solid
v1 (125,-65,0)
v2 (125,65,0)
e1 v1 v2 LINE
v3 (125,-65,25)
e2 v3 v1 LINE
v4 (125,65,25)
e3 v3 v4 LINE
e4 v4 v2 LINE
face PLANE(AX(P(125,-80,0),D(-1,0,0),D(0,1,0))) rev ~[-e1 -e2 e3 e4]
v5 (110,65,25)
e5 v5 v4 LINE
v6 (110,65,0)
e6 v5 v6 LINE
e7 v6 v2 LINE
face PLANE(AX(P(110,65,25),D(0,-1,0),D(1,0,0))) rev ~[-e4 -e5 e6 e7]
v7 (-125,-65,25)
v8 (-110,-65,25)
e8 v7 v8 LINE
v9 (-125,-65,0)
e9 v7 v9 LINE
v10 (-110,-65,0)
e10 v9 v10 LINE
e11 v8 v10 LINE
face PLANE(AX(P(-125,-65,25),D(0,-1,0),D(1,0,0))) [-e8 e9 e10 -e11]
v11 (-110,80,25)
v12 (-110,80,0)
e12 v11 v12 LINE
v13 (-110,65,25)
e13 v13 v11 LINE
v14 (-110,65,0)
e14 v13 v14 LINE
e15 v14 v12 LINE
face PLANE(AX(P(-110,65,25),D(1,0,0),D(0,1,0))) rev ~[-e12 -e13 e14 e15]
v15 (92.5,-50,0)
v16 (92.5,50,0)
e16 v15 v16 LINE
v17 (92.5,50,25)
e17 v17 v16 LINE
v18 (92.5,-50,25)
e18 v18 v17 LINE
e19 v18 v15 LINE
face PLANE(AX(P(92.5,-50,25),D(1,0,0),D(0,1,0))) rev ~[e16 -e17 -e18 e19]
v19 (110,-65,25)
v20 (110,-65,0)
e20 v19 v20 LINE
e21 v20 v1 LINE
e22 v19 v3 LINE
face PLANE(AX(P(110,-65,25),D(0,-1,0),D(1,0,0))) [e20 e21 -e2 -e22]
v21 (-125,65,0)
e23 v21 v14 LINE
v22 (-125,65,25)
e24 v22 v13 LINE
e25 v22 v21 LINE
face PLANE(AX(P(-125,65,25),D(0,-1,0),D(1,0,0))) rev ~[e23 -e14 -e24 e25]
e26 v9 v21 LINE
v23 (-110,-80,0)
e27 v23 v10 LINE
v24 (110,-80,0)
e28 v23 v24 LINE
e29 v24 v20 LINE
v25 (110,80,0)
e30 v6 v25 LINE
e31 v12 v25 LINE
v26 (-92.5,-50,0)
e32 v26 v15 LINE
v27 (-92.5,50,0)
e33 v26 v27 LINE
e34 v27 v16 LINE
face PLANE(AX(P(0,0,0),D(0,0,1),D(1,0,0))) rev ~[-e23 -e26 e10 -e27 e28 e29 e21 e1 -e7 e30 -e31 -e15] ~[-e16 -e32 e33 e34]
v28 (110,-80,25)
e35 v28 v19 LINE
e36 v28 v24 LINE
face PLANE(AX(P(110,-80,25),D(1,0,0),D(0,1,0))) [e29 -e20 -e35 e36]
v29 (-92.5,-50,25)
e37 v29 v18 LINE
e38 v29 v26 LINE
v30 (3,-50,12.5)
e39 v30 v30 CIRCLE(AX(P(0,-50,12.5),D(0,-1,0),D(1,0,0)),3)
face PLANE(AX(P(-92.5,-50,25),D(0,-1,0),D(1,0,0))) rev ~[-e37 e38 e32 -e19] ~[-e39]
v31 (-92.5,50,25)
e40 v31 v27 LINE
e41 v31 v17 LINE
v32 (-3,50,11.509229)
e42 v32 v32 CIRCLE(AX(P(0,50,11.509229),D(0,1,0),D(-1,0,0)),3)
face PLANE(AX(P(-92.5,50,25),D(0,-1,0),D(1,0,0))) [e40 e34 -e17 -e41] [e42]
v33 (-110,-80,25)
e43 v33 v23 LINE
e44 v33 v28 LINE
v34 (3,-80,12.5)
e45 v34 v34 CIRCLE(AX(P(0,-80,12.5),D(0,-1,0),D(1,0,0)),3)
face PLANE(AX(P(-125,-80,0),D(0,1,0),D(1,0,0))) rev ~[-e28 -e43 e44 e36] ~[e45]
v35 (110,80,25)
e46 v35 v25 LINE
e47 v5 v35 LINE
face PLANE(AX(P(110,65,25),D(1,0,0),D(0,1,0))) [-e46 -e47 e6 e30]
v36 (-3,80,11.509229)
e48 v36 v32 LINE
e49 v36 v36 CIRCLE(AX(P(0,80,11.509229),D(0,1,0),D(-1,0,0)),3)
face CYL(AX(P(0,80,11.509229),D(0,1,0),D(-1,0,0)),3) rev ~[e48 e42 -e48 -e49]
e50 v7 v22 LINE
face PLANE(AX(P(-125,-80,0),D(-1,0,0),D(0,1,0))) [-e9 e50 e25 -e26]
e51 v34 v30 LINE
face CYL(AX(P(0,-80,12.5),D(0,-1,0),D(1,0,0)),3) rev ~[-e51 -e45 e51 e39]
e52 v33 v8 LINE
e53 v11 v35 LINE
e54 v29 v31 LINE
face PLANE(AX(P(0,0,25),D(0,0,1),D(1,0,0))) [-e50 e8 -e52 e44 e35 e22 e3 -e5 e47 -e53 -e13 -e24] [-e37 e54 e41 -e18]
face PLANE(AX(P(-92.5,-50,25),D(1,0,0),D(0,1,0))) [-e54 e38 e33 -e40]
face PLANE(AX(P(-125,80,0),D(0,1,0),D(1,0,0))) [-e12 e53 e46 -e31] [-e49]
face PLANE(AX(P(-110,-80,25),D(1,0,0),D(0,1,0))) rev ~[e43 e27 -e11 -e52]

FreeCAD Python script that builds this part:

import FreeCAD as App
import Part
import Sketcher

V = App.Vector
Q = App.Units.Quantity

doc = App.newDocument("Part")
params = doc.addObject("Spreadsheet::Sheet", "Params")
for row, (alias, value) in enumerate([
    ("sketch1_width", "250 mm"),
    ("sketch1_height", "160 mm"),
    ("pad1_length", "25 mm"),
    ("sketch2_width", "15 mm"),
    ("pocket1_length", "25 mm"),
    ("sketch3_width", "185 mm"),
    ("sketch3_height", "100 mm"),
    ("pocket2_length", "25 mm"),
    ("sketch4_diameter", "6 mm"),
    ("pocket3_length", "40 mm"),
    ("sketch5_diameter", "6 mm"),
    ("pocket4_length", "40 mm"),
], start=1):
    params.set(f"A{row}", alias)
    params.set(f"B{row}", "=" + value)
    params.setAlias(f"B{row}", alias)

body = doc.addObject("PartDesign::Body", "Body")

# Sketch on XY plane
sketch1 = body.newObject("Sketcher::SketchObject", "Sketch")
sketch1.AttachmentSupport = (doc.getObject("XY_Plane"), [""])
sketch1.MapMode = "FlatFace"
sketch1.addGeometry(Part.LineSegment(V(-125, 80, 0), V(-125, -80, 0)), False)
sketch1.addGeometry(Part.LineSegment(V(-125, -80, 0), V(125, -80, 0)), False)
sketch1.addGeometry(Part.LineSegment(V(125, -80, 0), V(125, 80, 0)), False)
sketch1.addGeometry(Part.LineSegment(V(125, 80, 0), V(-125, 80, 0)), False)
sketch1.addConstraint(Sketcher.Constraint("Coincident", 0, 2, 1, 1))
sketch1.addConstraint(Sketcher.Constraint("Coincident", 1, 2, 2, 1))
sketch1.addConstraint(Sketcher.Constraint("Coincident", 2, 2, 3, 1))
sketch1.addConstraint(Sketcher.Constraint("Coincident", 3, 2, 0, 1))
sketch1.addConstraint(Sketcher.Constraint("Vertical", 0))
sketch1.addConstraint(Sketcher.Constraint("Horizontal", 1))
sketch1.addConstraint(Sketcher.Constraint("Vertical", 2))
sketch1.addConstraint(Sketcher.Constraint("Horizontal", 3))
sketch1.addConstraint(Sketcher.Constraint("Symmetric", 0, 2, 2, 2, -1, 1))
sketch1.addConstraint(Sketcher.Constraint("DistanceX", 1, 1, 1, 2, Q("250 mm")))
sketch1.addConstraint(Sketcher.Constraint("DistanceY", 0, 2, 0, 1, Q("160 mm")))
sketch1.setExpression("Constraints[9]", "Params.sketch1_width")
sketch1.setExpression("Constraints[10]", "Params.sketch1_height")
pad1 = body.newObject("PartDesign::Pad", "Pad")
pad1.Profile = sketch1
pad1.setExpression("Length", "Params.pad1_length")

# Sketch on XY plane
sketch2 = body.newObject("Sketcher::SketchObject", "Sketch001")
sketch2.AttachmentSupport = (doc.getObject("XY_Plane"), [""])
sketch2.MapMode = "FlatFace"
sketch2.AttachmentOffset = App.Placement(V(0, 0, 25), App.Rotation())
sketch2.addGeometry(Part.LineSegment(V(-125, 80, 0), V(-125, 65, 0)), False)
sketch2.addGeometry(Part.LineSegment(V(-125, 65, 0), V(-110, 65, 0)), False)
sketch2.addGeometry(Part.LineSegment(V(-110, 65, 0), V(-110, 80, 0)), False)
sketch2.addGeometry(Part.LineSegment(V(-110, 80, 0), V(-125, 80, 0)), False)
sketch2.addGeometry(Part.LineSegment(V(110, 80, 0), V(110, 65, 0)), False)
sketch2.addGeometry(Part.LineSegment(V(110, 65, 0), V(125, 65, 0)), False)
sketch2.addGeometry(Part.LineSegment(V(125, 65, 0), V(125, 80, 0)), False)
sketch2.addGeometry(Part.LineSegment(V(125, 80, 0), V(110, 80, 0)), False)
sketch2.addGeometry(Part.LineSegment(V(110, -65, 0), V(110, -80, 0)), False)
sketch2.addGeometry(Part.LineSegment(V(110, -80, 0), V(125, -80, 0)), False)
sketch2.addGeometry(Part.LineSegment(V(125, -80, 0), V(125, -65, 0)), False)
sketch2.addGeometry(Part.LineSegment(V(125, -65, 0), V(110, -65, 0)), False)
sketch2.addGeometry(Part.LineSegment(V(-125, -65, 0), V(-125, -80, 0)), False)
sketch2.addGeometry(Part.LineSegment(V(-125, -80, 0), V(-110, -80, 0)), False)
sketch2.addGeometry(Part.LineSegment(V(-110, -80, 0), V(-110, -65, 0)), False)
sketch2.addGeometry(Part.LineSegment(V(-110, -65, 0), V(-125, -65, 0)), False)
sketch2.addConstraint(Sketcher.Constraint("Coincident", 0, 2, 1, 1))
sketch2.addConstraint(Sketcher.Constraint("Coincident", 1, 2, 2, 1))
sketch2.addConstraint(Sketcher.Constraint("Coincident", 2, 2, 3, 1))
sketch2.addConstraint(Sketcher.Constraint("Coincident", 3, 2, 0, 1))
sketch2.addConstraint(Sketcher.Constraint("Coincident", 4, 2, 5, 1))
sketch2.addConstraint(Sketcher.Constraint("Coincident", 5, 2, 6, 1))
sketch2.addConstraint(Sketcher.Constraint("Coincident", 6, 2, 7, 1))
sketch2.addConstraint(Sketcher.Constraint("Coincident", 7, 2, 4, 1))
sketch2.addConstraint(Sketcher.Constraint("Coincident", 8, 2, 9, 1))
sketch2.addConstraint(Sketcher.Constraint("Coincident", 9, 2, 10, 1))
sketch2.addConstraint(Sketcher.Constraint("Coincident", 10, 2, 11, 1))
sketch2.addConstraint(Sketcher.Constraint("Coincident", 11, 2, 8, 1))
sketch2.addConstraint(Sketcher.Constraint("Coincident", 12, 2, 13, 1))
sketch2.addConstraint(Sketcher.Constraint("Coincident", 13, 2, 14, 1))
sketch2.addConstraint(Sketcher.Constraint("Coincident", 14, 2, 15, 1))
sketch2.addConstraint(Sketcher.Constraint("Coincident", 15, 2, 12, 1))
sketch2.addConstraint(Sketcher.Constraint("Vertical", 0))
sketch2.addConstraint(Sketcher.Constraint("Horizontal", 1))
sketch2.addConstraint(Sketcher.Constraint("Vertical", 2))
sketch2.addConstraint(Sketcher.Constraint("Horizontal", 3))
sketch2.addConstraint(Sketcher.Constraint("Vertical", 4))
sketch2.addConstraint(Sketcher.Constraint("Horizontal", 5))
sketch2.addConstraint(Sketcher.Constraint("Vertical", 6))
sketch2.addConstraint(Sketcher.Constraint("Horizontal", 7))
sketch2.addConstraint(Sketcher.Constraint("Vertical", 8))
sketch2.addConstraint(Sketcher.Constraint("Horizontal", 9))
sketch2.addConstraint(Sketcher.Constraint("Vertical", 10))
sketch2.addConstraint(Sketcher.Constraint("Horizontal", 11))
sketch2.addConstraint(Sketcher.Constraint("Vertical", 12))
sketch2.addConstraint(Sketcher.Constraint("Horizontal", 13))
sketch2.addConstraint(Sketcher.Constraint("Vertical", 14))
sketch2.addConstraint(Sketcher.Constraint("Horizontal", 15))
sketch2.addConstraint(Sketcher.Constraint("Symmetric", 2, 2, 8, 2, -1, 1))
sketch2.addConstraint(Sketcher.Constraint("Symmetric", 0, 2, 10, 2, -1, 1))
sketch2.addConstraint(Sketcher.Constraint("Symmetric", 6, 2, 12, 2, -1, 1))
sketch2.addConstraint(Sketcher.Constraint("Symmetric", 4, 2, 14, 2, -1, 1))
sketch2.addConstraint(Sketcher.Constraint("Symmetric", 1, 2, 4, 2, -2))
sketch2.addConstraint(Sketcher.Constraint("Symmetric", 3, 2, 6, 2, -2))
sketch2.addConstraint(Sketcher.Constraint("Equal", 15, 0))
sketch2.addConstraint(Sketcher.Constraint("DistanceX", 1, 1, 1, 2, Q("15 mm")))
sketch2.addConstraint(Sketcher.Constraint("DistanceX", 0, 2, -1, 1, Q("125 mm")))
sketch2.addConstraint(Sketcher.Constraint("DistanceY", -1, 1, 0, 2, Q("65 mm")))
sketch2.setExpression("Constraints[39]", "Params.sketch2_width")
pocket1 = body.newObject("PartDesign::Pocket", "Pocket")
pocket1.Profile = sketch2
pocket1.setExpression("Length", "Params.pocket1_length")

# Sketch on XY plane
sketch3 = body.newObject("Sketcher::SketchObject", "Sketch002")
sketch3.AttachmentSupport = (doc.getObject("XY_Plane"), [""])
sketch3.MapMode = "FlatFace"
sketch3.AttachmentOffset = App.Placement(V(0, 0, 25), App.Rotation())
sketch3.addGeometry(Part.LineSegment(V(-92, 50, 0), V(-92, -50, 0)), False)
sketch3.addGeometry(Part.LineSegment(V(-92, -50, 0), V(92, -50, 0)), False)
sketch3.addGeometry(Part.LineSegment(V(92, -50, 0), V(92, 50, 0)), False)
sketch3.addGeometry(Part.LineSegment(V(92, 50, 0), V(-92, 50, 0)), False)
sketch3.addConstraint(Sketcher.Constraint("Coincident", 0, 2, 1, 1))
sketch3.addConstraint(Sketcher.Constraint("Coincident", 1, 2, 2, 1))
sketch3.addConstraint(Sketcher.Constraint("Coincident", 2, 2, 3, 1))
sketch3.addConstraint(Sketcher.Constraint("Coincident", 3, 2, 0, 1))
sketch3.addConstraint(Sketcher.Constraint("Vertical", 0))
sketch3.addConstraint(Sketcher.Constraint("Horizontal", 1))
sketch3.addConstraint(Sketcher.Constraint("Vertical", 2))
sketch3.addConstraint(Sketcher.Constraint("Horizontal", 3))
sketch3.addConstraint(Sketcher.Constraint("Symmetric", 0, 2, 2, 2, -1, 1))
sketch3.addConstraint(Sketcher.Constraint("DistanceX", 1, 1, 1, 2, Q("185 mm")))
sketch3.addConstraint(Sketcher.Constraint("DistanceY", 0, 2, 0, 1, Q("100 mm")))
sketch3.setExpression("Constraints[9]", "Params.sketch3_width")
sketch3.setExpression("Constraints[10]", "Params.sketch3_height")
pocket2 = body.newObject("PartDesign::Pocket", "Pocket001")
pocket2.Profile = sketch3
pocket2.setExpression("Length", "Params.pocket2_length")

# Sketch on XZ plane
sketch4 = body.newObject("Sketcher::SketchObject", "Sketch003")
sketch4.AttachmentSupport = (doc.getObject("XZ_Plane"), [""])
sketch4.MapMode = "FlatFace"
sketch4.AttachmentOffset = App.Placement(V(0, 0, 80), App.Rotation())
sketch4.addGeometry(Part.Circle(V(0, 12.5, 0), V(0, 0, 1), 3), False)
sketch4.addConstraint(Sketcher.Constraint("PointOnObject", 0, 3, -2))
sketch4.addConstraint(Sketcher.Constraint("Diameter", 0, Q("6 mm")))
sketch4.addConstraint(Sketcher.Constraint("DistanceY", -1, 1, 0, 3, Q("12.5 mm")))
sketch4.setExpression("Constraints[1]", "Params.sketch4_diameter")
pocket3 = body.newObject("PartDesign::Pocket", "Pocket002")
pocket3.Profile = sketch4
pocket3.setExpression("Length", "Params.pocket3_length")

# Sketch on XZ plane
sketch5 = body.newObject("Sketcher::SketchObject", "Sketch004")
sketch5.AttachmentSupport = (doc.getObject("XZ_Plane"), [""])
sketch5.MapMode = "FlatFace"
sketch5.AttachmentOffset = App.Placement(V(0, 0, -80), App.Rotation())
sketch5.addGeometry(Part.Circle(V(0, 11.5, 0), V(0, 0, 1), 3), False)
sketch5.addConstraint(Sketcher.Constraint("PointOnObject", 0, 3, -2))
sketch5.addConstraint(Sketcher.Constraint("Diameter", 0, Q("6 mm")))
sketch5.addConstraint(Sketcher.Constraint("DistanceY", -1, 1, 0, 3, Q("11.509229 mm")))
sketch5.setExpression("Constraints[1]", "Params.sketch5_diameter")
pocket4 = body.newObject("PartDesign::Pocket", "Pocket003")
pocket4.Profile = sketch5
pocket4.setExpression("Length", "Params.pocket4_length")
pocket4.Reversed = True

doc.recompute()
